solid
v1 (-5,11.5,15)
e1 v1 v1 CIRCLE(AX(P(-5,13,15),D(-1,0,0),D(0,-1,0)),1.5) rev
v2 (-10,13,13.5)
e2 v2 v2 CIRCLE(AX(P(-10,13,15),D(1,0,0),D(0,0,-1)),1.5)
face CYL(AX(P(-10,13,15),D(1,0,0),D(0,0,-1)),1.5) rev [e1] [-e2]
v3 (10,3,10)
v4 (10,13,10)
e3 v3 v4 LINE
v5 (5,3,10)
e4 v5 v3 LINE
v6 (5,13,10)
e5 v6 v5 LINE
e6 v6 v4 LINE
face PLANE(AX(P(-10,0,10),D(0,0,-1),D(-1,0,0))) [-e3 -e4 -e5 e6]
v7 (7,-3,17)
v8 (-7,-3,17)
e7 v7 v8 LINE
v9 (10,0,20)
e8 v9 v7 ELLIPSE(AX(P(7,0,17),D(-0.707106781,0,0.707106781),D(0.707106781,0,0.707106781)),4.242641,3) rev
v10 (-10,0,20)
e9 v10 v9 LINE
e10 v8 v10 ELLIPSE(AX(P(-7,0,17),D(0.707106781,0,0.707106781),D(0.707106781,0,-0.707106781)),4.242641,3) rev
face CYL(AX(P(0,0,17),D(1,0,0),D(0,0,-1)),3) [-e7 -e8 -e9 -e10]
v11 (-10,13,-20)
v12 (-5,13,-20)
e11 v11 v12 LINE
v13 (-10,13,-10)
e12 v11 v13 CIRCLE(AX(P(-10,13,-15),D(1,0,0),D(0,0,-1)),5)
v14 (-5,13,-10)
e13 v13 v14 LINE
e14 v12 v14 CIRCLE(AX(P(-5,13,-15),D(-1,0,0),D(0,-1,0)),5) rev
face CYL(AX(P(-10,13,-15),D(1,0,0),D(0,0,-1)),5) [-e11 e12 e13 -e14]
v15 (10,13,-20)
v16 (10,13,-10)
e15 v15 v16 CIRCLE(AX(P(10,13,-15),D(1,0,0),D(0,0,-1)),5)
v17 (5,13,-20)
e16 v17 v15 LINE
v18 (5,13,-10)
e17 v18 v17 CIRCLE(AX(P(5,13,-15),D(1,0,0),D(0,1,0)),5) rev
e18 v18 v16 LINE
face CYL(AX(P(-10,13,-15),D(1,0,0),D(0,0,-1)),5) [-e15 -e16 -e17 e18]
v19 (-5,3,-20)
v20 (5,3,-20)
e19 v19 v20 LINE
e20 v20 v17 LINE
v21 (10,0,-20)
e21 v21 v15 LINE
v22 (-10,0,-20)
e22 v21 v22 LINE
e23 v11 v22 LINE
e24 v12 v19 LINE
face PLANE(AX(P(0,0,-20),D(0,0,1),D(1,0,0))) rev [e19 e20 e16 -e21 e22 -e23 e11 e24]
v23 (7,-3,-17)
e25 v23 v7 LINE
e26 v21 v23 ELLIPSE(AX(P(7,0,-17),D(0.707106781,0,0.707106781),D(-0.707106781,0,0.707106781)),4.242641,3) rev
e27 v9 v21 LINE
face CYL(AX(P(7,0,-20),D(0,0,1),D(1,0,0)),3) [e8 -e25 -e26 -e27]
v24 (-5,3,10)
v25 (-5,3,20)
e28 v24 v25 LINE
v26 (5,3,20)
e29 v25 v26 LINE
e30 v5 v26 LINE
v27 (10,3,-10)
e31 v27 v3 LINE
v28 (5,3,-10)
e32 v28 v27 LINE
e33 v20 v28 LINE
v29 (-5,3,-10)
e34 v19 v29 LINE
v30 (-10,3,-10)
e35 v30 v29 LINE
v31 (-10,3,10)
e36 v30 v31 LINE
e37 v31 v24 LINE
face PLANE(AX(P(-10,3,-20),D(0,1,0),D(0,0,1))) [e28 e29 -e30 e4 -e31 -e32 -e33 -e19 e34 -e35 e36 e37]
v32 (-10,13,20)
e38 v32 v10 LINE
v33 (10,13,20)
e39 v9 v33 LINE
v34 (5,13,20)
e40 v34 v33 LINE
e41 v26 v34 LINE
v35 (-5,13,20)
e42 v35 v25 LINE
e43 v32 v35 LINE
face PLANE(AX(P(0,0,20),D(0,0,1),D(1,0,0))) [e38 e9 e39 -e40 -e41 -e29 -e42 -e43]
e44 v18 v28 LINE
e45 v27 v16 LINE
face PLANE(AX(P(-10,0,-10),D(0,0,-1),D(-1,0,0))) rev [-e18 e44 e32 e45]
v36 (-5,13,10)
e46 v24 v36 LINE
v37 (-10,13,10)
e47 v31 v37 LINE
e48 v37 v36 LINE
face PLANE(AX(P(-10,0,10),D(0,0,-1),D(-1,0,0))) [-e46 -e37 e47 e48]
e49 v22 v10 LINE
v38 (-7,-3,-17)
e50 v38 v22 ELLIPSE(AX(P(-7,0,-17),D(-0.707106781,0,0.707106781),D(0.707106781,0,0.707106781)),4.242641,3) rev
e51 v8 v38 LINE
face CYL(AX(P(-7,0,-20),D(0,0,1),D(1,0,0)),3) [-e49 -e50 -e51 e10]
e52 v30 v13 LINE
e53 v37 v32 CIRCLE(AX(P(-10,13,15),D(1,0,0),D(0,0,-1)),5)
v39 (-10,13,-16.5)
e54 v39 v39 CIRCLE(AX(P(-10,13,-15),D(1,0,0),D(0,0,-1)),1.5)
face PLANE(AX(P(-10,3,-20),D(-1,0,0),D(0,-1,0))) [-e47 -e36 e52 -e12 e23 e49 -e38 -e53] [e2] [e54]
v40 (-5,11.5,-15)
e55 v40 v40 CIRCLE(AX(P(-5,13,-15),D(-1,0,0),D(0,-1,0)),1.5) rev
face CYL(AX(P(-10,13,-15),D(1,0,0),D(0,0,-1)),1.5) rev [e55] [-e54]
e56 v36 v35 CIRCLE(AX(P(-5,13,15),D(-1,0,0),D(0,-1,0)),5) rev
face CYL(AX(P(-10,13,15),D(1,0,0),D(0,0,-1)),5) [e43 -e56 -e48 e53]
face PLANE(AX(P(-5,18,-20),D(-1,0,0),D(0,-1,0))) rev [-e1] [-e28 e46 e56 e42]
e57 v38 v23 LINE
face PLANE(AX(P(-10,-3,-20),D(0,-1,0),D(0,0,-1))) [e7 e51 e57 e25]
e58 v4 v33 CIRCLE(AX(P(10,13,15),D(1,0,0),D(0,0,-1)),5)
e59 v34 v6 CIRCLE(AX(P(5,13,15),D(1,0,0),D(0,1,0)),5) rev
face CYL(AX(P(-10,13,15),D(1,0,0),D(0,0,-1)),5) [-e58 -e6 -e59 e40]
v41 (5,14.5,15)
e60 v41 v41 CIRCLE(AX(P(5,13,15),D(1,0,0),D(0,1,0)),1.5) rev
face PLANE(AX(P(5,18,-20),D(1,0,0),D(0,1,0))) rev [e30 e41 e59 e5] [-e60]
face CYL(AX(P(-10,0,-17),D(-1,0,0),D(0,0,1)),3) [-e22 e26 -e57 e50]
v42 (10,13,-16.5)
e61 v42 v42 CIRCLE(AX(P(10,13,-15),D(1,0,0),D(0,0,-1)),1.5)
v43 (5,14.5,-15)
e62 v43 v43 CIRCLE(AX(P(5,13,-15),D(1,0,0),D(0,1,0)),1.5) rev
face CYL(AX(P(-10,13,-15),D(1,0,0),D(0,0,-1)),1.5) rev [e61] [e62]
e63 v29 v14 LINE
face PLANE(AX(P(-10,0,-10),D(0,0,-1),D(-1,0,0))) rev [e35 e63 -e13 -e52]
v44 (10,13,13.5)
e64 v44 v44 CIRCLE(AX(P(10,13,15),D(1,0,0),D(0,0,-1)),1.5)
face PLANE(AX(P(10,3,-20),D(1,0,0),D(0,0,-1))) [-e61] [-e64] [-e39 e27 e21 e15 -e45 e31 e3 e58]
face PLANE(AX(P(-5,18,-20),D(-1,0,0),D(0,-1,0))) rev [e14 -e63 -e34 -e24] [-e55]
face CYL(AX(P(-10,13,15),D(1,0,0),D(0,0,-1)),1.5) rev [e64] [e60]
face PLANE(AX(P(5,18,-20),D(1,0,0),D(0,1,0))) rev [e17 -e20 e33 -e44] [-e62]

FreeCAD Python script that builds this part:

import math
import FreeCAD as App
import Part
import Sketcher

V = App.Vector


def edges_at(feature, points):
    """Names of the edges that pass closest to the given points."""
    edges = feature.Shape.Edges
    near = lambda p: min(range(len(edges)), key=lambda i: edges[i].distToShape(Part.Vertex(*p))[0])
    return sorted({f"Edge{near(p) + 1}" for p in points})


def add_polygon(sketch, points):
    """Adds a closed chain of lines whose ends are joined by coincident constraints."""
    first, n = sketch.GeometryCount, len(points)
    for a, b in zip(points, points[1:] + points[:1]):
        sketch.addGeometry(Part.LineSegment(App.Vector(*a, 0), App.Vector(*b, 0)), False)
    for i in range(n):
        sketch.addConstraint(Sketcher.Constraint("Coincident", first + i, 2, first + (i + 1) % n, 1))

doc = App.newDocument("Part")
body = doc.addObject("PartDesign::Body", "Body")

# Sketch on XY plane
sketch1 = doc.addObject("Sketcher::SketchObject", "Sketch")
body.addObject(sketch1)
sketch1.AttachmentSupport = (doc.XY_Plane, [""])
sketch1.MapMode = "FlatFace"
add_polygon(sketch1, [(-10, 3), (-10, -3), (10, -3), (10, 3)])  # lines 0-3
sketch1.addConstraint(Sketcher.Constraint("Vertical", 0))
sketch1.addConstraint(Sketcher.Constraint("Horizontal", 1))
sketch1.addConstraint(Sketcher.Constraint("Vertical", 2))
sketch1.addConstraint(Sketcher.Constraint("Horizontal", 3))
sketch1.addConstraint(Sketcher.Constraint("Symmetric", 0, 2, 2, 2, -1, 1))
sketch1.addConstraint(Sketcher.Constraint("DistanceX", 1, 1, 1, 2, 20.0))
sketch1.addConstraint(Sketcher.Constraint("DistanceY", 0, 2, 0, 1, 6.0))
pad1 = doc.addObject("PartDesign::Pad", "Pad")
body.addObject(pad1)
pad1.Profile = sketch1
pad1.Type = "TwoLengths"
pad1.Length = 20
pad1.Length2 = 20

# Sketch on YZ plane
sketch2 = doc.addObject("Sketcher::SketchObject", "Sketch001")
body.addObject(sketch2)
sketch2.AttachmentSupport = (doc.YZ_Plane, [""])
sketch2.MapMode = "FlatFace"
sketch2.AttachmentOffset = App.Placement(V(0, 0, 10), App.Rotation())
sketch2.addGeometry(Part.ArcOfCircle(Part.Circle(V(13, 15, 0), V(0, 0, 1), 5), math.radians(-90), math.radians(90)), False)
sketch2.addGeometry(Part.LineSegment(V(13, 20, 0), V(3, 20, 0)), False)
sketch2.addGeometry(Part.LineSegment(V(3, 20, 0), V(3, 10, 0)), False)
sketch2.addGeometry(Part.LineSegment(V(3, 10, 0), V(13, 10, 0)), False)
sketch2.addGeometry(Part.Circle(V(13, 15, 0), V(0, 0, 1), 1.5), False)
sketch2.addGeometry(Part.ArcOfCircle(Part.Circle(V(13, -15, 0), V(0, 0, 1), 5), math.radians(-90), math.radians(90)), False)
sketch2.addGeometry(Part.LineSegment(V(13, -10, 0), V(3, -10, 0)), False)
sketch2.addGeometry(Part.LineSegment(V(3, -10, 0), V(3, -20, 0)), False)
sketch2.addGeometry(Part.LineSegment(V(3, -20, 0), V(13, -20, 0)), False)
sketch2.addGeometry(Part.Circle(V(13, -15, 0), V(0, 0, 1), 1.5), False)
sketch2.addConstraint(Sketcher.Constraint("Tangent", 0, 2, 1, 1))
sketch2.addConstraint(Sketcher.Constraint("Coincident", 1, 2, 2, 1))
sketch2.addConstraint(Sketcher.Constraint("Coincident", 2, 2, 3, 1))
sketch2.addConstraint(Sketcher.Constraint("Tangent", 3, 2, 0, 1))
sketch2.addConstraint(Sketcher.Constraint("Tangent", 5, 2, 6, 1))
sketch2.addConstraint(Sketcher.Constraint("Coincident", 6, 2, 7, 1))
sketch2.addConstraint(Sketcher.Constraint("Coincident", 7, 2, 8, 1))
sketch2.addConstraint(Sketcher.Constraint("Tangent", 8, 2, 5, 1))
sketch2.addConstraint(Sketcher.Constraint("Horizontal", 1))
sketch2.addConstraint(Sketcher.Constraint("Vertical", 2))
sketch2.addConstraint(Sketcher.Constraint("Horizontal", 3))
sketch2.addConstraint(Sketcher.Constraint("Horizontal", 6))
sketch2.addConstraint(Sketcher.Constraint("Vertical", 7))
sketch2.addConstraint(Sketcher.Constraint("Horizontal", 8))
sketch2.addConstraint(Sketcher.Constraint("Coincident", 4, 3, 0, 3))
sketch2.addConstraint(Sketcher.Constraint("Coincident", 9, 3, 5, 3))
sketch2.addConstraint(Sketcher.Constraint("Equal", 0, 5))
sketch2.addConstraint(Sketcher.Constraint("Equal", 4, 9))
sketch2.addConstraint(Sketcher.Constraint("Symmetric", 0, 3, 5, 3, -1))
sketch2.addConstraint(Sketcher.Constraint("Vertical", 2, 2, 6, 2))
sketch2.addConstraint(Sketcher.Constraint("Equal", 8, 2))
sketch2.addConstraint(Sketcher.Constraint("Diameter", 4, 3.0))
sketch2.addConstraint(Sketcher.Constraint("Radius", 0, 5.0))
sketch2.addConstraint(Sketcher.Constraint("DistanceX", -1, 1, 0, 3, 13.0))
sketch2.addConstraint(Sketcher.Constraint("DistanceY", -1, 1, 0, 3, 15.0))
pad2 = doc.addObject("PartDesign::Pad", "Pad001")
body.addObject(pad2)
pad2.Profile = sketch2
pad2.Length = 20
pad2.Reversed = True

# Sketch on XY plane
sketch3 = doc.addObject("Sketcher::SketchObject", "Sketch002")
body.addObject(sketch3)
sketch3.AttachmentSupport = (doc.XY_Plane, [""])
sketch3.MapMode = "FlatFace"
sketch3.AttachmentOffset = App.Placement(V(0, 0, 20), App.Rotation())
add_polygon(sketch3, [(-5, 18), (-5, 3), (5, 3), (5, 18)])  # lines 0-3
sketch3.addConstraint(Sketcher.Constraint("Vertical", 0))
sketch3.addConstraint(Sketcher.Constraint("Horizontal", 1))
sketch3.addConstraint(Sketcher.Constraint("Vertical", 2))
sketch3.addConstraint(Sketcher.Constraint("Horizontal", 3))
sketch3.addConstraint(Sketcher.Constraint("DistanceX", 1, 1, 1, 2, 10.0))
sketch3.addConstraint(Sketcher.Constraint("DistanceY", 0, 2, 0, 1, 15.0))
sketch3.addConstraint(Sketcher.Constraint("DistanceX", 0, 2, -1, 1, 5.0))
sketch3.addConstraint(Sketcher.Constraint("DistanceY", -1, 1, 0, 2, 3.0))
pocket1 = doc.addObject("PartDesign::Pocket", "Pocket")
body.addObject(pocket1)
pocket1.Profile = sketch3
pocket1.Length = 40
doc.recompute()

fillet = doc.addObject("PartDesign::Fillet", "Fillet")
body.addObject(fillet)
fillet.Base = (pocket1, edges_at(pocket1, [
    (0, -3, 20),
    (0, -3, -20),
    (10, -3, 0),
    (-10, -3, 0),
]))
fillet.Radius = 3

doc.recompute()
